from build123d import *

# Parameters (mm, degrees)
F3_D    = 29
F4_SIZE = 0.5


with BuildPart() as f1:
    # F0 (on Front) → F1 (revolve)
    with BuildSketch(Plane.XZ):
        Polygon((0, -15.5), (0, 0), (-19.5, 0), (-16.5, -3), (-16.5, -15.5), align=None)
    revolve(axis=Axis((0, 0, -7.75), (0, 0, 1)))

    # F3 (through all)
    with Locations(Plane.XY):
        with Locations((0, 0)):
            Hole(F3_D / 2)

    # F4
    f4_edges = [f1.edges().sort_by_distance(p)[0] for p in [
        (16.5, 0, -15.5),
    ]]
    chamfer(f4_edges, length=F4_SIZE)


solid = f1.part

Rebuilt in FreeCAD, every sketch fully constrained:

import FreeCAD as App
import Part
import Sketcher
from FreeCAD import Vector
Q = App.Units.Quantity


def edges_at(feature, points):
    """Names of the edges that pass closest to the given points."""
    edges = feature.Shape.Edges
    near = lambda p: min(range(len(edges)), key=lambda i: edges[i].distToShape(Part.Vertex(*p))[0])
    return sorted({f"Edge{near(p) + 1}" for p in points})

doc = App.newDocument("Part")
body = doc.addObject("PartDesign::Body", "Body")

# Sketch on XZ plane
sketch1 = body.newObject("Sketcher::SketchObject", "Sketch")
sketch1.AttachmentSupport = (doc.getObject("XZ_Plane"), [""])
sketch1.MapMode = "FlatFace"
sketch1.addGeometry(Part.LineSegment(Vector(0, -15.5, 0), Vector(0, 0, 0)), False)
sketch1.addGeometry(Part.LineSegment(Vector(0, 0, 0), Vector(-19.5, 0, 0)), False)
sketch1.addGeometry(Part.LineSegment(Vector(-19.5, 0, 0), Vector(-16.5, -3, 0)), False)
sketch1.addGeometry(Part.LineSegment(Vector(-16.5, -3, 0), Vector(-16.5, -15.5, 0)), False)
sketch1.addGeometry(Part.LineSegment(Vector(-16.5, -15.5, 0), Vector(0, -15.5, 0)), False)
sketch1.addConstraint(Sketcher.Constraint("Coincident", 0, 2, 1, 1))
sketch1.addConstraint(Sketcher.Constraint("Coincident", 1, 2, 2, 1))
sketch1.addConstraint(Sketcher.Constraint("Coincident", 2, 2, 3, 1))
sketch1.addConstraint(Sketcher.Constraint("Coincident", 3, 2, 4, 1))
sketch1.addConstraint(Sketcher.Constraint("Coincident", 4, 2, 0, 1))
sketch1.addConstraint(Sketcher.Constraint("Vertical", 0))
sketch1.addConstraint(Sketcher.Constraint("Horizontal", 1))
sketch1.addConstraint(Sketcher.Constraint("Vertical", 3))
sketch1.addConstraint(Sketcher.Constraint("Horizontal", 4))
sketch1.addConstraint(Sketcher.Constraint("Coincident", 0, 2, -1, 1))
sketch1.addConstraint(Sketcher.Constraint("Angle", 2, Q("-45 deg")))
sketch1.addConstraint(Sketcher.Constraint("DistanceX", 1, 2, 1, 1, Q("19.5 mm")))
sketch1.addConstraint(Sketcher.Constraint("DistanceX", 4, 1, 4, 2, Q("16.5 mm")))
sketch1.addConstraint(Sketcher.Constraint("DistanceY", 0, 1, 0, 2, Q("15.5 mm")))
revolution = body.newObject("PartDesign::Revolution", "Revolution")
revolution.Profile = sketch1
revolution.ReferenceAxis = (sketch1, ["V_Axis"])
revolution.Angle = 360

# Sketch on XY plane
sketch2 = body.newObject("Sketcher::SketchObject", "Sketch001")
sketch2.AttachmentSupport = (doc.getObject("XY_Plane"), [""])
sketch2.MapMode = "FlatFace"
sketch2.addGeometry(Part.Circle(Vector(0, 0, 0), Vector(0, 0, 1), 14.5), False)
sketch2.addConstraint(Sketcher.Constraint("Coincident", 0, 3, -1, 1))
sketch2.addConstraint(Sketcher.Constraint("Diameter", 0, Q("29 mm")))
doc.recompute()
hole = body.newObject("PartDesign::Hole", "Hole")
hole.Profile = sketch2
hole.ThreadType = "None"
hole.Diameter = 29
hole.DepthType = "ThroughAll"
doc.recompute()

chamfer = body.newObject("PartDesign::Chamfer", "Chamfer")
chamfer.Base = (hole, edges_at(hole, [(16.5, 0, -15.5)]))
chamfer.Size = 0.5

doc.recompute()
